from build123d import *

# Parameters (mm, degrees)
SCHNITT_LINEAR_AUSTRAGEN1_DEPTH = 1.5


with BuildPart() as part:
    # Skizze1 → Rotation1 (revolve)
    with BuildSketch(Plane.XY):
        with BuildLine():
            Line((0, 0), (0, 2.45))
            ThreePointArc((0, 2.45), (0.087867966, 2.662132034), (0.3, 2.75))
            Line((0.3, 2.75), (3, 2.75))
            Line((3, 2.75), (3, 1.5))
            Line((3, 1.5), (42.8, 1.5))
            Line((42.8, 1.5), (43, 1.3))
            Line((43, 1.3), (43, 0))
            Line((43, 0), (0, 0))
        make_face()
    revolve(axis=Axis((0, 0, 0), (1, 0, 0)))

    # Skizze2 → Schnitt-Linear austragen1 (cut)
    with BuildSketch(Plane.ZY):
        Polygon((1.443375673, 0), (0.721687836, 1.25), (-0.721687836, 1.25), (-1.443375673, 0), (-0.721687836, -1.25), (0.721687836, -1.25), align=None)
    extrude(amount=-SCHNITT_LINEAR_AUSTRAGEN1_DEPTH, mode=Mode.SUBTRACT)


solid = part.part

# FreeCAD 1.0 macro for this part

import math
import FreeCAD as App
import Part
import Sketcher

V = App.Vector
Q = App.Units.Quantity

doc = App.newDocument("Part")
body = doc.addObject("PartDesign::Body", "Body")

# Sketch on XY plane
sketch1 = doc.addObject("Sketcher::SketchObject", "Sketch")
body.addObject(sketch1)
sketch1.AttachmentSupport = (doc.XY_Plane, [""])
sketch1.MapMode = "FlatFace"
sketch1.addGeometry(Part.LineSegment(V(0, 2.45, 0), V(0, 0, 0)), False)
sketch1.addGeometry(Part.LineSegment(V(0, 0, 0), V(43, 0, 0)), False)
sketch1.addGeometry(Part.LineSegment(V(43, 0, 0), V(43, 1.3, 0)), False)
sketch1.addGeometry(Part.LineSegment(V(43, 1.3, 0), V(42.8, 1.5, 0)), False)
sketch1.addGeometry(Part.LineSegment(V(42.8, 1.5, 0), V(3, 1.5, 0)), False)
sketch1.addGeometry(Part.LineSegment(V(3, 1.5, 0), V(3, 2.75, 0)), False)
sketch1.addGeometry(Part.LineSegment(V(3, 2.75, 0), V(0.3, 2.75, 0)), False)
sketch1.addGeometry(Part.ArcOfCircle(Part.Circle(V(0.3, 2.45, 0), V(0, 0, 1), 0.3), math.radians(90), math.radians(180)), False)
sketch1.addConstraint(Sketcher.Constraint("Coincident", 0, 2, 1, 1))
sketch1.addConstraint(Sketcher.Constraint("Coincident", 1, 2, 2, 1))
sketch1.addConstraint(Sketcher.Constraint("Coincident", 2, 2, 3, 1))
sketch1.addConstraint(Sketcher.Constraint("Coincident", 3, 2, 4, 1))
sketch1.addConstraint(Sketcher.Constraint("Coincident", 4, 2, 5, 1))
sketch1.addConstraint(Sketcher.Constraint("Coincident", 5, 2, 6, 1))
sketch1.addConstraint(Sketcher.Constraint("Tangent", 6, 2, 7, 1))
sketch1.addConstraint(Sketcher.Constraint("Tangent", 7, 2, 0, 1))
sketch1.addConstraint(Sketcher.Constraint("Vertical", 0))
sketch1.addConstraint(Sketcher.Constraint("Horizontal", 1))
sketch1.addConstraint(Sketcher.Constraint("Vertical", 2))
sketch1.addConstraint(Sketcher.Constraint("Horizontal", 4))
sketch1.addConstraint(Sketcher.Constraint("Vertical", 5))
sketch1.addConstraint(Sketcher.Constraint("Horizontal", 6))
sketch1.addConstraint(Sketcher.Constraint("Coincident", 0, 2, -1, 1))
sketch1.addConstraint(Sketcher.Constraint("Radius", 7, 0.3))
sketch1.addConstraint(Sketcher.Constraint("DistanceX", 1, 1, 1, 2, 43.0))
sketch1.addConstraint(Sketcher.Constraint("Angle", 3, Q("135 deg")))
sketch1.addConstraint(Sketcher.Constraint("DistanceX", 4, 2, 4, 1, 39.8))
sketch1.addConstraint(Sketcher.Constraint("DistanceX", 6, 2, 6, 1, 2.7))
sketch1.addConstraint(Sketcher.Constraint("DistanceY", 2, 1, 2, 2, 1.3))
sketch1.addConstraint(Sketcher.Constraint("DistanceY", 0, 2, 0, 1, 2.45))
revolution = doc.addObject("PartDesign::Revolution", "Revolution")
body.addObject(revolution)
revolution.Profile = sketch1
revolution.ReferenceAxis = (sketch1, ["H_Axis"])
revolution.Angle = 360

# Sketch on YZ plane
sketch2 = doc.addObject("Sketcher::SketchObject", "Sketch001")
body.addObject(sketch2)
sketch2.AttachmentSupport = (doc.YZ_Plane, [""])
sketch2.MapMode = "FlatFace"
sketch2.addGeometry(Part.LineSegment(V(0, 1.4, 0), V(1.2, 0.7, 0)), False)
sketch2.addGeometry(Part.LineSegment(V(1.2, 0.7, 0), V(1.2, -0.7, 0)), False)
sketch2.addGeometry(Part.LineSegment(V(1.2, -0.7, 0), V(0, -1.4, 0)), False)
sketch2.addGeometry(Part.LineSegment(V(0, -1.4, 0), V(-1.2, -0.7, 0)), False)
sketch2.addGeometry(Part.LineSegment(V(-1.2, -0.7, 0), V(-1.2, 0.7, 0)), False)
sketch2.addGeometry(Part.LineSegment(V(-1.2, 0.7, 0), V(0, 1.4, 0)), False)
sketch2.addConstraint(Sketcher.Constraint("Coincident", 0, 2, 1, 1))
sketch2.addConstraint(Sketcher.Constraint("Coincident", 1, 2, 2, 1))
sketch2.addConstraint(Sketcher.Constraint("Coincident", 2, 2, 3, 1))
sketch2.addConstraint(Sketcher.Constraint("Coincident", 3, 2, 4, 1))
sketch2.addConstraint(Sketcher.Constraint("Coincident", 4, 2, 5, 1))
sketch2.addConstraint(Sketcher.Constraint("Coincident", 5, 2, 0, 1))
sketch2.addConstraint(Sketcher.Constraint("Vertical", 1))
sketch2.addConstraint(Sketcher.Constraint("Vertical", 4))
sketch2.addConstraint(Sketcher.Constraint("Symmetric", 0, 2, 3, 2, -1, 1))
sketch2.addConstraint(Sketcher.Constraint("Symmetric", 2, 2, 5, 2, -1, 1))
sketch2.addConstraint(Sketcher.Constraint("PointOnObject", 2, 2, -2))
sketch2.addConstraint(Sketcher.Constraint("Parallel", 2, 5))
sketch2.addConstraint(Sketcher.Constraint("Horizontal", 1, 2, 3, 2))
sketch2.addConstraint(Sketcher.Constraint("Angle", 0, Q("-30 deg")))
sketch2.addConstraint(Sketcher.Constraint("DistanceX", 3, 2, 1, 2, 2.5))
sketch2.addConstraint(Sketcher.Constraint("DistanceY", 1, 2, 1, 1, 1.443376))
pocket1 = doc.addObject("PartDesign::Pocket", "Pocket")
body.addObject(pocket1)
pocket1.Profile = sketch2
pocket1.Length = 1.5
pocket1.Reversed = True

doc.recompute()
